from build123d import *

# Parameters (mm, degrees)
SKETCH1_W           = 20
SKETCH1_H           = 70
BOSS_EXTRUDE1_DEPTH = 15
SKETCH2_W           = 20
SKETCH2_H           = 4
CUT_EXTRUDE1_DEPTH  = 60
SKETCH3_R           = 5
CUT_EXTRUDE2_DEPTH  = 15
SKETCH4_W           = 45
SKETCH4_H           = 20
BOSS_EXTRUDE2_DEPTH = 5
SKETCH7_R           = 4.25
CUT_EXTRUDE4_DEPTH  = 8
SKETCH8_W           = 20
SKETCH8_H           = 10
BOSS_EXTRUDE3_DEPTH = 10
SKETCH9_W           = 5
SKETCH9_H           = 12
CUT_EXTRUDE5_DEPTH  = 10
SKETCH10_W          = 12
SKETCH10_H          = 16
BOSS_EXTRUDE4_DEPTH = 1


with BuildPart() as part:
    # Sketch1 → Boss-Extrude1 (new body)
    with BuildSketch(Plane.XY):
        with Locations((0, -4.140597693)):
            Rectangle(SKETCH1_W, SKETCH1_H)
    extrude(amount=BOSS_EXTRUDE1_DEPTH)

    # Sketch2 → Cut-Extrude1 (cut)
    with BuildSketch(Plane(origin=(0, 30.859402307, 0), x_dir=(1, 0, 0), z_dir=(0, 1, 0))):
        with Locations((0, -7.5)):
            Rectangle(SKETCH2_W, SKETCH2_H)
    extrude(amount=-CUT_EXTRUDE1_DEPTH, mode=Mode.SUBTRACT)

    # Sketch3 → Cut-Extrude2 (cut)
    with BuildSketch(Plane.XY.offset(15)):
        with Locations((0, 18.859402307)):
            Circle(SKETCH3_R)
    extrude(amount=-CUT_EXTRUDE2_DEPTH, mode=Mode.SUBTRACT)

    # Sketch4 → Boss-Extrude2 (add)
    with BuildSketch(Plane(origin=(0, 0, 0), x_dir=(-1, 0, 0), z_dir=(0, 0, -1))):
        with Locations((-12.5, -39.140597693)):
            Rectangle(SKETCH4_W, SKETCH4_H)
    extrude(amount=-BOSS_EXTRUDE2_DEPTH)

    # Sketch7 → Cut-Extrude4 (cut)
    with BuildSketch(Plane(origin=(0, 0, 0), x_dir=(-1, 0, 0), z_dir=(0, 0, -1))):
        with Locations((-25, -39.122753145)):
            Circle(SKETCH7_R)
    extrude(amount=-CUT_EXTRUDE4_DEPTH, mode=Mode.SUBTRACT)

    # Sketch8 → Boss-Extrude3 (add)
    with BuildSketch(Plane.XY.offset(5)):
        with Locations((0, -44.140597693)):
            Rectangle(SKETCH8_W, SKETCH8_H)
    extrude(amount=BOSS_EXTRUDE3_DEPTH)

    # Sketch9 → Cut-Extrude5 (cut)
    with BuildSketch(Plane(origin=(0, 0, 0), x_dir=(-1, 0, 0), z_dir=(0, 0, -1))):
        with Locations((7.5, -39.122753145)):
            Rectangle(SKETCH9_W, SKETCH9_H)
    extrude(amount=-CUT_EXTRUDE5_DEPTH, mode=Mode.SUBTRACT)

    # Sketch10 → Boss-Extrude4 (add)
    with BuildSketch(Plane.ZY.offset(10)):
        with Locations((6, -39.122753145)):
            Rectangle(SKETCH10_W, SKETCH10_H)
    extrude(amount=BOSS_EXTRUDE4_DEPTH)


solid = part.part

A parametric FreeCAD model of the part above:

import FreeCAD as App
import Part
import Sketcher
from FreeCAD import Vector

doc = App.newDocument("Part")
body = doc.addObject("PartDesign::Body", "Body")

# Sketch on XY plane
sketch1 = doc.addObject("Sketcher::SketchObject", "Sketch")
body.addObject(sketch1)
sketch1.AttachmentSupport = (doc.XY_Plane, [""])
sketch1.MapMode = "FlatFace"
sketch1.addGeometry([
    Part.LineSegment(Vector(-10, 31, 0), Vector(-10, -39, 0)),
    Part.LineSegment(Vector(-10, -39, 0), Vector(10, -39, 0)),
    Part.LineSegment(Vector(10, -39, 0), Vector(10, 31, 0)),
    Part.LineSegment(Vector(10, 31, 0), Vector(-10, 31, 0)),
], False)
sketch1.addConstraint([
    Sketcher.Constraint("Coincident", 0, 2, 1, 1),
    Sketcher.Constraint("Coincident", 1, 2, 2, 1),
    Sketcher.Constraint("Coincident", 2, 2, 3, 1),
    Sketcher.Constraint("Coincident", 3, 2, 0, 1),
    Sketcher.Constraint("Vertical", 0),
    Sketcher.Constraint("Horizontal", 1),
    Sketcher.Constraint("Vertical", 2),
    Sketcher.Constraint("Horizontal", 3),
    Sketcher.Constraint("DistanceX", 1, 1, 1, 2, 20.0),
    Sketcher.Constraint("DistanceY", 0, 2, 0, 1, 70.0),
    Sketcher.Constraint("DistanceX", 0, 2, -1, 1, 10.0),
    Sketcher.Constraint("DistanceY", 0, 2, -1, 1, 39.140598),
])
pad1 = doc.addObject("PartDesign::Pad", "Pad")
body.addObject(pad1)
pad1.Profile = sketch1
pad1.Length = 15

# Sketch on XZ plane
sketch2 = doc.addObject("Sketcher::SketchObject", "Sketch001")
body.addObject(sketch2)
sketch2.AttachmentSupport = (doc.XZ_Plane, [""])
sketch2.MapMode = "FlatFace"
sketch2.AttachmentOffset = App.Placement(Vector(0, 0, -30.859402), App.Rotation())
sketch2.addGeometry([
    Part.LineSegment(Vector(-10, 5.5, 0), Vector(-10, 9.5, 0)),
    Part.LineSegment(Vector(-10, 9.5, 0), Vector(10, 9.5, 0)),
    Part.LineSegment(Vector(10, 9.5, 0), Vector(10, 5.5, 0)),
    Part.LineSegment(Vector(10, 5.5, 0), Vector(-10, 5.5, 0)),
], False)
sketch2.addConstraint([
    Sketcher.Constraint("Coincident", 0, 2, 1, 1),
    Sketcher.Constraint("Coincident", 1, 2, 2, 1),
    Sketcher.Constraint("Coincident", 2, 2, 3, 1),
    Sketcher.Constraint("Coincident", 3, 2, 0, 1),
    Sketcher.Constraint("Vertical", 0),
    Sketcher.Constraint("Horizontal", 1),
    Sketcher.Constraint("Vertical", 2),
    Sketcher.Constraint("Horizontal", 3),
    Sketcher.Constraint("DistanceX", 1, 1, 1, 2, 20.0),
    Sketcher.Constraint("DistanceY", 0, 1, 0, 2, 4.0),
    Sketcher.Constraint("DistanceX", 0, 2, -1, 1, 10.0),
    Sketcher.Constraint("DistanceY", -1, 1, 0, 2, 9.5),
])
pocket1 = doc.addObject("PartDesign::Pocket", "Pocket")
body.addObject(pocket1)
pocket1.Profile = sketch2
pocket1.Length = 60
pocket1.Reversed = True

# Sketch on XY plane
sketch3 = doc.addObject("Sketcher::SketchObject", "Sketch002")
body.addObject(sketch3)
sketch3.AttachmentSupport = (doc.XY_Plane, [""])
sketch3.MapMode = "FlatFace"
sketch3.AttachmentOffset = App.Placement(Vector(0, 0, 15), App.Rotation())
sketch3.addGeometry(Part.Circle(Vector(0, 19, 0), Vector(0, 0, 1), 5), False)
sketch3.addConstraint([
    Sketcher.Constraint("PointOnObject", 0, 3, -2),
    Sketcher.Constraint("Diameter", 0, 10.0),
    Sketcher.Constraint("DistanceY", -1, 1, 0, 3, 18.859402),
])
pocket2 = doc.addObject("PartDesign::Pocket", "Pocket001")
body.addObject(pocket2)
pocket2.Profile = sketch3
pocket2.Length = 15

# Sketch on XY plane
sketch4 = doc.addObject("Sketcher::SketchObject", "Sketch003")
body.addObject(sketch4)
sketch4.AttachmentSupport = (doc.XY_Plane, [""])
sketch4.MapMode = "FlatFace"
sketch4.addGeometry([
    Part.LineSegment(Vector(35, -29, 0), Vector(35, -49, 0)),
    Part.LineSegment(Vector(35, -49, 0), Vector(-10, -49, 0)),
    Part.LineSegment(Vector(-10, -49, 0), Vector(-10, -29, 0)),
    Part.LineSegment(Vector(-10, -29, 0), Vector(35, -29, 0)),
], False)
sketch4.addConstraint([
    Sketcher.Constraint("Coincident", 0, 2, 1, 1),
    Sketcher.Constraint("Coincident", 1, 2, 2, 1),
    Sketcher.Constraint("Coincident", 2, 2, 3, 1),
    Sketcher.Constraint("Coincident", 3, 2, 0, 1),
    Sketcher.Constraint("Vertical", 0),
    Sketcher.Constraint("Horizontal", 1),
    Sketcher.Constraint("Vertical", 2),
    Sketcher.Constraint("Horizontal", 3),
    Sketcher.Constraint("DistanceX", 1, 2, 1, 1, 45.0),
    Sketcher.Constraint("DistanceY", 0, 2, 0, 1, 20.0),
    Sketcher.Constraint("DistanceX", -1, 1, 0, 2, 35.0),
    Sketcher.Constraint("DistanceY", 0, 2, -1, 1, 49.140598),
])
pad2 = doc.addObject("PartDesign::Pad", "Pad001")
body.addObject(pad2)
pad2.Profile = sketch4
pad2.Length = 5

# Sketch on XY plane
sketch5 = doc.addObject("Sketcher::SketchObject", "Sketch004")
body.addObject(sketch5)
sketch5.AttachmentSupport = (doc.XY_Plane, [""])
sketch5.MapMode = "FlatFace"
sketch5.addGeometry(Part.Circle(Vector(25, -39.1, 0), Vector(0, 0, 1), 4.2), False)
sketch5.addConstraint([
    Sketcher.Constraint("Diameter", 0, 8.5),
    Sketcher.Constraint("DistanceX", -1, 1, 0, 3, 25.0),
    Sketcher.Constraint("DistanceY", 0, 3, -1, 1, 39.122753),
])
pocket3 = doc.addObject("PartDesign::Pocket", "Pocket002")
body.addObject(pocket3)
pocket3.Profile = sketch5
pocket3.Length = 8
pocket3.Reversed = True

# Sketch on XY plane
sketch6 = doc.addObject("Sketcher::SketchObject", "Sketch005")
body.addObject(sketch6)
sketch6.AttachmentSupport = (doc.XY_Plane, [""])
sketch6.MapMode = "FlatFace"
sketch6.AttachmentOffset = App.Placement(Vector(0, 0, 5), App.Rotation())
sketch6.addGeometry([
    Part.LineSegment(Vector(-10, -39, 0), Vector(-10, -49, 0)),
    Part.LineSegment(Vector(-10, -49, 0), Vector(10, -49, 0)),
    Part.LineSegment(Vector(10, -49, 0), Vector(10, -39, 0)),
    Part.LineSegment(Vector(10, -39, 0), Vector(-10, -39, 0)),
], False)
sketch6.addConstraint([
    Sketcher.Constraint("Coincident", 0, 2, 1, 1),
    Sketcher.Constraint("Coincident", 1, 2, 2, 1),
    Sketcher.Constraint("Coincident", 2, 2, 3, 1),
    Sketcher.Constraint("Coincident", 3, 2, 0, 1),
    Sketcher.Constraint("Vertical", 0),
    Sketcher.Constraint("Horizontal", 1),
    Sketcher.Constraint("Vertical", 2),
    Sketcher.Constraint("Horizontal", 3),
    Sketcher.Constraint("DistanceX", 1, 1, 1, 2, 20.0),
    Sketcher.Constraint("DistanceY", 0, 2, 0, 1, 10.0),
    Sketcher.Constraint("DistanceX", 0, 2, -1, 1, 10.0),
    Sketcher.Constraint("DistanceY", 0, 2, -1, 1, 49.140598),
])
pad3 = doc.addObject("PartDesign::Pad", "Pad002")
body.addObject(pad3)
pad3.Profile = sketch6
pad3.Length = 10

# Sketch on XY plane
sketch7 = doc.addObject("Sketcher::SketchObject", "Sketch006")
body.addObject(sketch7)
sketch7.AttachmentSupport = (doc.XY_Plane, [""])
sketch7.MapMode = "FlatFace"
sketch7.addGeometry([
    Part.LineSegment(Vector(-5, -33, 0), Vector(-5, -45, 0)),
    Part.LineSegment(Vector(-5, -45, 0), Vector(-10, -45, 0)),
    Part.LineSegment(Vector(-10, -45, 0), Vector(-10, -33, 0)),
    Part.LineSegment(Vector(-10, -33, 0), Vector(-5, -33, 0)),
], False)
sketch7.addConstraint([
    Sketcher.Constraint("Coincident", 0, 2, 1, 1),
    Sketcher.Constraint("Coincident", 1, 2, 2, 1),
    Sketcher.Constraint("Coincident", 2, 2, 3, 1),
    Sketcher.Constraint("Coincident", 3, 2, 0, 1),
    Sketcher.Constraint("Vertical", 0),
    Sketcher.Constraint("Horizontal", 1),
    Sketcher.Constraint("Vertical", 2),
    Sketcher.Constraint("Horizontal", 3),
    Sketcher.Constraint("DistanceX", 1, 2, 1, 1, 5.0),
    Sketcher.Constraint("DistanceY", 0, 2, 0, 1, 12.0),
    Sketcher.Constraint("DistanceX", 0, 2, -1, 1, 5.0),
    Sketcher.Constraint("DistanceY", 0, 2, -1, 1, 45.122753),
])
pocket4 = doc.addObject("PartDesign::Pocket", "Pocket003")
body.addObject(pocket4)
pocket4.Profile = sketch7
pocket4.Length = 10
pocket4.Reversed = True

# Sketch on YZ plane
sketch8 = doc.addObject("Sketcher::SketchObject", "Sketch007")
body.addObject(sketch8)
sketch8.AttachmentSupport = (doc.YZ_Plane, [""])
sketch8.MapMode = "FlatFace"
sketch8.AttachmentOffset = App.Placement(Vector(0, 0, -10), App.Rotation())
sketch8.addGeometry([
    Part.LineSegment(Vector(-31, 0, 0), Vector(-47, 0, 0)),
    Part.LineSegment(Vector(-47, 0, 0), Vector(-47, 12, 0)),
    Part.LineSegment(Vector(-47, 12, 0), Vector(-31, 12, 0)),
    Part.LineSegment(Vector(-31, 12, 0), Vector(-31, 0, 0)),
], False)
sketch8.addConstraint([
    Sketcher.Constraint("Coincident", 0, 2, 1, 1),
    Sketcher.Constraint("Coincident", 1, 2, 2, 1),
    Sketcher.Constraint("Coincident", 2, 2, 3, 1),
    Sketcher.Constraint("Coincident", 3, 2, 0, 1),
    Sketcher.Constraint("Horizontal", 0),
    Sketcher.Constraint("Vertical", 1),
    Sketcher.Constraint("Horizontal", 2),
    Sketcher.Constraint("Vertical", 3),
    Sketcher.Constraint("PointOnObject", 0, 2, -1),
    Sketcher.Constraint("DistanceX", 0, 2, 0, 1, 16.0),
    Sketcher.Constraint("DistanceY", 1, 1, 1, 2, 12.0),
    Sketcher.Constraint("DistanceX", 0, 2, -1, 1, 47.122753),
])
pad4 = doc.addObject("PartDesign::Pad", "Pad003")
body.addObject(pad4)
pad4.Profile = sketch8
pad4.Length = 1
pad4.Reversed = True

doc.recompute()
